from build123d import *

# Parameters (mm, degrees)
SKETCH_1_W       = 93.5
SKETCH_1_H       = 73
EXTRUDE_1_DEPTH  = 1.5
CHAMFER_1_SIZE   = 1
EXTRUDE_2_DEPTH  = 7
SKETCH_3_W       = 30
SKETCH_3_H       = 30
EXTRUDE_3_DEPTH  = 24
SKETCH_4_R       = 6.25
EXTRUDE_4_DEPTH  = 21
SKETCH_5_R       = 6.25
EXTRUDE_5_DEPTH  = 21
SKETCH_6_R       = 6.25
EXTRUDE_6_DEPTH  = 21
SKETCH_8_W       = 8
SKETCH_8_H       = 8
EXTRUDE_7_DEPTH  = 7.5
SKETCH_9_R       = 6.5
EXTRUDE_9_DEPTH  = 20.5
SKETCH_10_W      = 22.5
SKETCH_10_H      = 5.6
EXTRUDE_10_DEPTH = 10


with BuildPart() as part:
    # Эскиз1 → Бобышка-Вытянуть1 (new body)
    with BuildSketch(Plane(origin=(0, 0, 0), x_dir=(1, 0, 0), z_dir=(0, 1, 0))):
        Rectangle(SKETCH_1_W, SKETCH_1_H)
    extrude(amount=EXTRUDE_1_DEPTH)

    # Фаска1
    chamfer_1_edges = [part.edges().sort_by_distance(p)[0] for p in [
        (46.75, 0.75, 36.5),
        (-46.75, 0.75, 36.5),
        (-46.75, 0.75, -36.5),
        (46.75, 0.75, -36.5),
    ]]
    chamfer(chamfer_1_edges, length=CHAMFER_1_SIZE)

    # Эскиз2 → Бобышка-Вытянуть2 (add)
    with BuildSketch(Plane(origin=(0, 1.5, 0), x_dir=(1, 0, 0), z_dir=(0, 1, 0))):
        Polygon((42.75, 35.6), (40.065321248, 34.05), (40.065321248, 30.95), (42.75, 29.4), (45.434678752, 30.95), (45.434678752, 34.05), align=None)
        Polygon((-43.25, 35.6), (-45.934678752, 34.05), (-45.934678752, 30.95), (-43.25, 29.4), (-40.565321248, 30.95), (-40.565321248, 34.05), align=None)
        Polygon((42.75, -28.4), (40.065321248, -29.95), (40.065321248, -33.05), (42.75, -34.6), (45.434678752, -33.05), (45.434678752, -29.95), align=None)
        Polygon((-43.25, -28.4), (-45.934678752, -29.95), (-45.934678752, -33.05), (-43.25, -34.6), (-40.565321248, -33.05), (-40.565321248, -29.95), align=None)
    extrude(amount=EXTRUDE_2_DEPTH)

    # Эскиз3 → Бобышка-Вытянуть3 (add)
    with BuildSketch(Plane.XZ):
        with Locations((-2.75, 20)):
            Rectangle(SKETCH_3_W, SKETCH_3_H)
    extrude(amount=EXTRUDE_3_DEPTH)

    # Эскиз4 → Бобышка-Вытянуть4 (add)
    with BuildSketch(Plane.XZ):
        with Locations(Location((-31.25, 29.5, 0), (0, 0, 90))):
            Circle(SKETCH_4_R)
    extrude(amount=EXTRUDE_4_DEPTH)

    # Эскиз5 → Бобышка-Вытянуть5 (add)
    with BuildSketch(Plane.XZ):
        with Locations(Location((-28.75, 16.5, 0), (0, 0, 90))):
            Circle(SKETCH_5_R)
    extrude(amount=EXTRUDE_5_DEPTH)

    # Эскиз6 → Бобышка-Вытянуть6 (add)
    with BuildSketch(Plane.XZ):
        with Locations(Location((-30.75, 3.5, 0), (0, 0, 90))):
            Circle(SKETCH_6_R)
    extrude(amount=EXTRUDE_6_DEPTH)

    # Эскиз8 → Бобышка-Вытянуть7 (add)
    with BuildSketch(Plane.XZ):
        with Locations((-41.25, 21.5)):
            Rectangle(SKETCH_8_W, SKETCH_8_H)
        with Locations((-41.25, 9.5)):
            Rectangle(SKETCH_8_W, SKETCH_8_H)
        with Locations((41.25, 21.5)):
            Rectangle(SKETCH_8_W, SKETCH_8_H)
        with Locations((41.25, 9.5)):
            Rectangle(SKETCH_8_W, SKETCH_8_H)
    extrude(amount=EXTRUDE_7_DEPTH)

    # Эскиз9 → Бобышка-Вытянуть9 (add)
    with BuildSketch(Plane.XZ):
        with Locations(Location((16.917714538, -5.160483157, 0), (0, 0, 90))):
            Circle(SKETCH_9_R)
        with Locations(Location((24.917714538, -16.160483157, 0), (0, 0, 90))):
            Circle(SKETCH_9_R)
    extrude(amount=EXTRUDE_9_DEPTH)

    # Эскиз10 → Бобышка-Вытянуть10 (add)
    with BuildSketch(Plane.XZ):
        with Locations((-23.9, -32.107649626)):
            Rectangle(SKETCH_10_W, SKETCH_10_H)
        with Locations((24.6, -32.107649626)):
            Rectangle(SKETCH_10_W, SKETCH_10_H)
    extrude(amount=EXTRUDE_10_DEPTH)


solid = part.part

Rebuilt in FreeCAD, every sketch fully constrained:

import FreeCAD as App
import Part
import Sketcher

V = App.Vector
Q = App.Units.Quantity


def edges_at(feature, points):
    """Names of the edges that pass closest to the given points."""
    edges = feature.Shape.Edges
    near = lambda p: min(range(len(edges)), key=lambda i: edges[i].distToShape(Part.Vertex(*p))[0])
    return sorted({f"Edge{near(p) + 1}" for p in points})


def add_polygon(sketch, points):
    """Adds a closed chain of lines whose ends are joined by coincident constraints."""
    first, n = sketch.GeometryCount, len(points)
    for a, b in zip(points, points[1:] + points[:1]):
        sketch.addGeometry(Part.LineSegment(App.Vector(*a, 0), App.Vector(*b, 0)), False)
    for i in range(n):
        sketch.addConstraint(Sketcher.Constraint("Coincident", first + i, 2, first + (i + 1) % n, 1))

doc = App.newDocument("Part")
body = doc.addObject("PartDesign::Body", "Body")

# Sketch on XZ plane
sketch1 = body.newObject("Sketcher::SketchObject", "Sketch")
sketch1.AttachmentSupport = (doc.getObject("XZ_Plane"), [""])
sketch1.MapMode = "FlatFace"
add_polygon(sketch1, [(-46.75, -36.5), (-46.75, 36.5), (46.75, 36.5), (46.75, -36.5)])  # lines 0-3
sketch1.addConstraint([
    Sketcher.Constraint("Vertical", 0),
    Sketcher.Constraint("Horizontal", 1),
    Sketcher.Constraint("Vertical", 2),
    Sketcher.Constraint("Horizontal", 3),
    Sketcher.Constraint("Symmetric", 0, 2, 2, 2, -1, 1),
    Sketcher.Constraint("DistanceY", 0, 1, 0, 2, Q("73 mm")),
    Sketcher.Constraint("DistanceX", 1, 1, 1, 2, Q("93.5 mm")),
])
pad1 = body.newObject("PartDesign::Pad", "Pad")
pad1.Profile = sketch1
pad1.Length = 1.5
pad1.Reversed = True
doc.recompute()

chamfer = body.newObject("PartDesign::Chamfer", "Chamfer")
chamfer.Base = (pad1, edges_at(pad1, [
    (46.75, 0.75, 36.5),
    (-46.75, 0.75, 36.5),
    (-46.75, 0.75, -36.5),
    (46.75, 0.75, -36.5),
]))
chamfer.Size = 1

# Sketch on XZ plane
sketch2 = body.newObject("Sketcher::SketchObject", "Sketch001")
sketch2.AttachmentSupport = (doc.getObject("XZ_Plane"), [""])
sketch2.MapMode = "FlatFace"
sketch2.AttachmentOffset = App.Placement(V(0, 0, -1.5), App.Rotation())
add_polygon(sketch2, [(42.75, -35.6), (40.065321, -34.05), (40.065321, -30.95), (42.75, -29.4), (45.434679, -30.95), (45.434679, -34.05)])  # lines 0-5
add_polygon(sketch2, [(-43.25, -35.6), (-45.934679, -34.05), (-45.934679, -30.95), (-43.25, -29.4), (-40.565321, -30.95), (-40.565321, -34.05)])  # lines 6-11
add_polygon(sketch2, [(42.75, 28.4), (40.065321, 29.95), (40.065321, 33.05), (42.75, 34.6), (45.434679, 33.05), (45.434679, 29.95)])  # lines 12-17
add_polygon(sketch2, [(-43.25, 28.4), (-45.934679, 29.95), (-45.934679, 33.05), (-43.25, 34.6), (-40.565321, 33.05), (-40.565321, 29.95)])  # lines 18-23
sketch2.addConstraint([
    Sketcher.Constraint("Vertical", 1),
    Sketcher.Constraint("Vertical", 4),
    Sketcher.Constraint("Vertical", 7),
    Sketcher.Constraint("Vertical", 10),
    Sketcher.Constraint("Vertical", 13),
    Sketcher.Constraint("Vertical", 16),
    Sketcher.Constraint("Vertical", 19),
    Sketcher.Constraint("Vertical", 22),
    Sketcher.Constraint("Parallel", 0, 3),
    Sketcher.Constraint("Parallel", 2, 5),
    Sketcher.Constraint("Parallel", 3, 6),
    Sketcher.Constraint("Parallel", 5, 8),
    Sketcher.Constraint("Parallel", 6, 9),
    Sketcher.Constraint("Parallel", 8, 11),
    Sketcher.Constraint("Parallel", 9, 12),
    Sketcher.Constraint("Parallel", 11, 14),
    Sketcher.Constraint("Parallel", 12, 15),
    Sketcher.Constraint("Parallel", 14, 17),
    Sketcher.Constraint("Parallel", 15, 18),
    Sketcher.Constraint("Parallel", 17, 20),
    Sketcher.Constraint("Parallel", 18, 21),
    Sketcher.Constraint("Parallel", 20, 23),
    Sketcher.Constraint("Horizontal", 1, 2, 3, 2),
    Sketcher.Constraint("Horizontal", 0, 2, 4, 2),
    Sketcher.Constraint("Horizontal", 4, 2, 6, 2),
    Sketcher.Constraint("Horizontal", 3, 2, 7, 2),
    Sketcher.Constraint("Horizontal", 2, 2, 8, 2),
    Sketcher.Constraint("Horizontal", 7, 2, 9, 2),
    Sketcher.Constraint("Horizontal", 6, 2, 10, 2),
    Sketcher.Constraint("Horizontal", 13, 2, 15, 2),
    Sketcher.Constraint("Horizontal", 12, 2, 16, 2),
    Sketcher.Constraint("Horizontal", 16, 2, 18, 2),
    Sketcher.Constraint("Horizontal", 15, 2, 19, 2),
    Sketcher.Constraint("Horizontal", 14, 2, 20, 2),
    Sketcher.Constraint("Horizontal", 19, 2, 21, 2),
    Sketcher.Constraint("Horizontal", 18, 2, 22, 2),
    Sketcher.Constraint("Vertical", 2, 2, 5, 2),
    Sketcher.Constraint("Vertical", 1, 2, 12, 2),
    Sketcher.Constraint("Vertical", 5, 2, 14, 2),
    Sketcher.Constraint("Vertical", 7, 2, 18, 2),
    Sketcher.Constraint("Equal", 10, 13),
    Sketcher.Constraint("Angle", 0, Q("150 deg")),
    Sketcher.Constraint("DistanceY", 1, 1, 1, 2, Q("3.1 mm")),
    Sketcher.Constraint("DistanceX", 6, 2, 0, 2, Q("86 mm")),
    Sketcher.Constraint("DistanceY", 0, 2, 12, 2, Q("64 mm")),
    Sketcher.Constraint("Distance", 0, Q("3.1 mm")),
    Sketcher.Constraint("DistanceY", 2, 2, -1, 1, Q("29.4 mm")),
    Sketcher.Constraint("DistanceX", -1, 1, 2, 2, Q("42.75 mm")),
])
pad2 = body.newObject("PartDesign::Pad", "Pad001")
pad2.Profile = sketch2
pad2.Length = 7
pad2.Reversed = True

# Sketch on XZ plane
sketch3 = body.newObject("Sketcher::SketchObject", "Sketch002")
sketch3.AttachmentSupport = (doc.getObject("XZ_Plane"), [""])
sketch3.MapMode = "FlatFace"
add_polygon(sketch3, [(-17.75, 35), (-17.75, 5), (12.25, 5), (12.25, 35)])  # lines 0-3
sketch3.addConstraint([
    Sketcher.Constraint("Vertical", 0),
    Sketcher.Constraint("Horizontal", 1),
    Sketcher.Constraint("Vertical", 2),
    Sketcher.Constraint("Horizontal", 3),
    Sketcher.Constraint("Equal", 3, 0),
    Sketcher.Constraint("DistanceX", 1, 1, 1, 2, Q("30 mm")),
    Sketcher.Constraint("DistanceY", -1, 1, 0, 2, Q("5 mm")),
    Sketcher.Constraint("DistanceX", 0, 2, -1, 1, Q("17.75 mm")),
])
pad3 = body.newObject("PartDesign::Pad", "Pad002")
pad3.Profile = sketch3
pad3.Length = 24

# Sketch on XZ plane
sketch4 = body.newObject("Sketcher::SketchObject", "Sketch003")
sketch4.AttachmentSupport = (doc.getObject("XZ_Plane"), [""])
sketch4.MapMode = "FlatFace"
sketch4.addGeometry(Part.Circle(V(-31.25, 29.5, 0), V(0, 0, 1), 6.25), False)
sketch4.addConstraint([
    Sketcher.Constraint("Diameter", 0, Q("12.5 mm")),
    Sketcher.Constraint("DistanceY", -1, 1, 0, 3, Q("29.5 mm")),
    Sketcher.Constraint("DistanceX", 0, 3, -1, 1, Q("31.25 mm")),
])
pad4 = body.newObject("PartDesign::Pad", "Pad003")
pad4.Profile = sketch4
pad4.Length = 21

# Sketch on XZ plane
sketch5 = body.newObject("Sketcher::SketchObject", "Sketch004")
sketch5.AttachmentSupport = (doc.getObject("XZ_Plane"), [""])
sketch5.MapMode = "FlatFace"
sketch5.addGeometry(Part.Circle(V(-28.75, 16.5, 0), V(0, 0, 1), 6.25), False)
sketch5.addConstraint([
    Sketcher.Constraint("Diameter", 0, Q("12.5 mm")),
    Sketcher.Constraint("DistanceY", -1, 1, 0, 3, Q("16.5 mm")),
    Sketcher.Constraint("DistanceX", 0, 3, -1, 1, Q("28.75 mm")),
])
pad5 = body.newObject("PartDesign::Pad", "Pad004")
pad5.Profile = sketch5
pad5.Length = 21

# Sketch on XZ plane
sketch6 = body.newObject("Sketcher::SketchObject", "Sketch005")
sketch6.AttachmentSupport = (doc.getObject("XZ_Plane"), [""])
sketch6.MapMode = "FlatFace"
sketch6.addGeometry(Part.Circle(V(-30.75, 3.5, 0), V(0, 0, 1), 6.25), False)
sketch6.addConstraint([
    Sketcher.Constraint("Diameter", 0, Q("12.5 mm")),
    Sketcher.Constraint("DistanceY", -1, 1, 0, 3, Q("3.5 mm")),
    Sketcher.Constraint("DistanceX", 0, 3, -1, 1, Q("30.75 mm")),
])
pad6 = body.newObject("PartDesign::Pad", "Pad005")
pad6.Profile = sketch6
pad6.Length = 21

# Sketch on XZ plane
sketch7 = body.newObject("Sketcher::SketchObject", "Sketch006")
sketch7.AttachmentSupport = (doc.getObject("XZ_Plane"), [""])
sketch7.MapMode = "FlatFace"
add_polygon(sketch7, [(-45.25, 25.5), (-45.25, 17.5), (-37.25, 17.5), (-37.25, 25.5)])  # lines 0-3
add_polygon(sketch7, [(-45.25, 13.5), (-45.25, 5.5), (-37.25, 5.5), (-37.25, 13.5)])  # lines 4-7
add_polygon(sketch7, [(37.25, 25.5), (37.25, 17.5), (45.25, 17.5), (45.25, 25.5)])  # lines 8-11
add_polygon(sketch7, [(37.25, 13.5), (37.25, 5.5), (45.25, 5.5), (45.25, 13.5)])  # lines 12-15
sketch7.addConstraint([
    Sketcher.Constraint("Vertical", 0),
    Sketcher.Constraint("Horizontal", 1),
    Sketcher.Constraint("Vertical", 2),
    Sketcher.Constraint("Horizontal", 3),
    Sketcher.Constraint("Vertical", 4),
    Sketcher.Constraint("Horizontal", 5),
    Sketcher.Constraint("Vertical", 6),
    Sketcher.Constraint("Horizontal", 7),
    Sketcher.Constraint("Vertical", 8),
    Sketcher.Constraint("Horizontal", 9),
    Sketcher.Constraint("Vertical", 10),
    Sketcher.Constraint("Horizontal", 11),
    Sketcher.Constraint("Vertical", 12),
    Sketcher.Constraint("Horizontal", 13),
    Sketcher.Constraint("Vertical", 14),
    Sketcher.Constraint("Horizontal", 15),
    Sketcher.Constraint("Symmetric", 1, 2, 8, 2, -2),
    Sketcher.Constraint("Symmetric", 3, 2, 10, 2, -2),
    Sketcher.Constraint("Symmetric", 5, 2, 12, 2, -2),
    Sketcher.Constraint("Symmetric", 7, 2, 14, 2, -2),
    Sketcher.Constraint("Vertical", 3, 2, 4, 2),
    Sketcher.Constraint("Vertical", 2, 2, 5, 2),
    Sketcher.Constraint("Equal", 15, 0),
    Sketcher.Constraint("Equal", 2, 4),
    Sketcher.Constraint("DistanceX", 1, 1, 1, 2, Q("8 mm")),
    Sketcher.Constraint("DistanceY", 4, 2, 0, 2, Q("12 mm")),
    Sketcher.Constraint("DistanceY", -1, 1, 0, 2, Q("17.5 mm")),
    Sketcher.Constraint("DistanceX", 1, 2, 8, 2, Q("74.5 mm")),
])
pad7 = body.newObject("PartDesign::Pad", "Pad006")
pad7.Profile = sketch7
pad7.Length = 7.5

# Sketch on XZ plane
sketch8 = body.newObject("Sketcher::SketchObject", "Sketch007")
sketch8.AttachmentSupport = (doc.getObject("XZ_Plane"), [""])
sketch8.MapMode = "FlatFace"
sketch8.addGeometry([
    Part.Circle(V(16.917715, -5.160483, 0), V(0, 0, 1), 6.5),
    Part.Circle(V(24.917715, -16.160483, 0), V(0, 0, 1), 6.5),
], False)
sketch8.addConstraint([
    Sketcher.Constraint("Equal", 0, 1),
    Sketcher.Constraint("Diameter", 0, Q("13 mm")),
    Sketcher.Constraint("DistanceX", 0, 3, 1, 3, Q("8 mm")),
    Sketcher.Constraint("DistanceY", 1, 3, 0, 3, Q("11 mm")),
    Sketcher.Constraint("DistanceX", -1, 1, 0, 3, Q("16.917715 mm")),
    Sketcher.Constraint("DistanceY", 0, 3, -1, 1, Q("5.160483 mm")),
])
pad8 = body.newObject("PartDesign::Pad", "Pad007")
pad8.Profile = sketch8
pad8.Length = 20.5

# Sketch on XZ plane
sketch9 = body.newObject("Sketcher::SketchObject", "Sketch008")
sketch9.AttachmentSupport = (doc.getObject("XZ_Plane"), [""])
sketch9.MapMode = "FlatFace"
add_polygon(sketch9, [(-35.15, -29.30765), (-35.15, -34.90765), (-12.65, -34.90765), (-12.65, -29.30765)])  # lines 0-3
add_polygon(sketch9, [(13.35, -29.30765), (13.35, -34.90765), (35.85, -34.90765), (35.85, -29.30765)])  # lines 4-7
sketch9.addConstraint([
    Sketcher.Constraint("Vertical", 0),
    Sketcher.Constraint("Horizontal", 1),
    Sketcher.Constraint("Vertical", 2),
    Sketcher.Constraint("Horizontal", 3),
    Sketcher.Constraint("Vertical", 4),
    Sketcher.Constraint("Horizontal", 5),
    Sketcher.Constraint("Vertical", 6),
    Sketcher.Constraint("Horizontal", 7),
    Sketcher.Constraint("Horizontal", 1, 2, 4, 2),
    Sketcher.Constraint("Horizontal", 3, 2, 6, 2),
    Sketcher.Constraint("Equal", 3, 5),
    Sketcher.Constraint("DistanceX", 1, 1, 1, 2, Q("22.5 mm")),
    Sketcher.Constraint("DistanceY", 0, 2, 0, 1, Q("5.6 mm")),
    Sketcher.Constraint("DistanceX", 1, 2, 4, 2, Q("26 mm")),
    Sketcher.Constraint("DistanceX", 0, 2, -1, 1, Q("35.15 mm")),
    Sketcher.Constraint("DistanceY", 0, 2, -1, 1, Q("34.90765 mm")),
])
pad9 = body.newObject("PartDesign::Pad", "Pad008")
pad9.Profile = sketch9
pad9.Length = 10

doc.recompute()
